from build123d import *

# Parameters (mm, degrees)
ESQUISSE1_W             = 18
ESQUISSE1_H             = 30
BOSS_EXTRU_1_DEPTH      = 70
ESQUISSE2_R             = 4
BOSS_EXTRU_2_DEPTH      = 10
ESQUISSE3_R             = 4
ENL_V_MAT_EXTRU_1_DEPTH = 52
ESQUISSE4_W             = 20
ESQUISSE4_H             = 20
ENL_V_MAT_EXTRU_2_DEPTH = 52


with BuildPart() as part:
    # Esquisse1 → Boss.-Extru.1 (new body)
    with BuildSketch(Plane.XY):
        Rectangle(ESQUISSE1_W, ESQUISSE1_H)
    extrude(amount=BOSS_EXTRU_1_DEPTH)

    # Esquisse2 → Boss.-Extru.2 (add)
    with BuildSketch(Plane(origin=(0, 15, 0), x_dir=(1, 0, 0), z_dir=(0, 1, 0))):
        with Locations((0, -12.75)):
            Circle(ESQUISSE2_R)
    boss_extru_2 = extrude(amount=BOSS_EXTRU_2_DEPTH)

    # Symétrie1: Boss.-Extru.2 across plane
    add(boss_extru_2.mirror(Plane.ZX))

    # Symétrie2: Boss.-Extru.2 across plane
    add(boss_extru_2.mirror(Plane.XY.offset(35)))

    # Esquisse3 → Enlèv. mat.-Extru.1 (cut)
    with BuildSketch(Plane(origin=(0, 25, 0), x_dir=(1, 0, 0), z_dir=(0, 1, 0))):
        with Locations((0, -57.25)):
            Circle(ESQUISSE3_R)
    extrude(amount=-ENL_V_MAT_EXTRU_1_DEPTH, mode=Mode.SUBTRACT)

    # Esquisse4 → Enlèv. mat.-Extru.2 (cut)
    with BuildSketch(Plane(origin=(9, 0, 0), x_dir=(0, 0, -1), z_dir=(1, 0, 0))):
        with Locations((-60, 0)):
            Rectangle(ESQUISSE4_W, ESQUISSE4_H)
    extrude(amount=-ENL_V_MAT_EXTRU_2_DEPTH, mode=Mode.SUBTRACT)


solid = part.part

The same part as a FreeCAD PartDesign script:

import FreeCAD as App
import Part
import Sketcher
from FreeCAD import Vector

doc = App.newDocument("Part")
params = doc.addObject("Spreadsheet::Sheet", "Params")
for row, (alias, value) in enumerate([
    ("sketch1_width", "18 mm"),
    ("sketch1_height", "30 mm"),
    ("pad1_length", "70 mm"),
    ("sketch2_diameter", "8 mm"),
    ("pad2_length", "10 mm"),
    ("sketch3_diameter", "8 mm"),
    ("pocket1_length", "52 mm"),
    ("sketch4_width", "20 mm"),
    ("pocket2_length", "52 mm"),
], start=1):
    params.set(f"A{row}", alias)
    params.set(f"B{row}", "=" + value)
    params.setAlias(f"B{row}", alias)

body = doc.addObject("PartDesign::Body", "Body")

# Sketch on XY plane
sketch1 = body.newObject("Sketcher::SketchObject", "Sketch")
sketch1.AttachmentSupport = (doc.getObject("XY_Plane"), [""])
sketch1.MapMode = "FlatFace"
sketch1.addGeometry([
    Part.LineSegment(Vector(-9, 15, 0), Vector(-9, -15, 0)),
    Part.LineSegment(Vector(-9, -15, 0), Vector(9, -15, 0)),
    Part.LineSegment(Vector(9, -15, 0), Vector(9, 15, 0)),
    Part.LineSegment(Vector(9, 15, 0), Vector(-9, 15, 0)),
], False)
sketch1.addConstraint([
    Sketcher.Constraint("Coincident", 0, 2, 1, 1),
    Sketcher.Constraint("Coincident", 1, 2, 2, 1),
    Sketcher.Constraint("Coincident", 2, 2, 3, 1),
    Sketcher.Constraint("Coincident", 3, 2, 0, 1),
    Sketcher.Constraint("Vertical", 0),
    Sketcher.Constraint("Horizontal", 1),
    Sketcher.Constraint("Vertical", 2),
    Sketcher.Constraint("Horizontal", 3),
    Sketcher.Constraint("Symmetric", 0, 2, 2, 2, -1, 1),
    Sketcher.Constraint("DistanceX", 1, 1, 1, 2, 18.0),
    Sketcher.Constraint("DistanceY", 0, 2, 0, 1, 30.0),
])
sketch1.setExpression("Constraints[9]", "Params.sketch1_width")
sketch1.setExpression("Constraints[10]", "Params.sketch1_height")
pad1 = body.newObject("PartDesign::Pad", "Pad")
pad1.Profile = sketch1
pad1.setExpression("Length", "Params.pad1_length")

# Sketch on XZ plane
sketch2 = body.newObject("Sketcher::SketchObject", "Sketch001")
sketch2.AttachmentSupport = (doc.getObject("XZ_Plane"), [""])
sketch2.MapMode = "FlatFace"
sketch2.AttachmentOffset = App.Placement(Vector(0, 0, -15), App.Rotation())
sketch2.addGeometry(Part.Circle(Vector(0, 12.75, 0), Vector(0, 0, 1), 4), False)
sketch2.addConstraint([
    Sketcher.Constraint("PointOnObject", 0, 3, -2),
    Sketcher.Constraint("Diameter", 0, 8.0),
    Sketcher.Constraint("DistanceY", -1, 1, 0, 3, 12.75),
])
sketch2.setExpression("Constraints[1]", "Params.sketch2_diameter")
pad2 = body.newObject("PartDesign::Pad", "Pad001")
pad2.Profile = sketch2
pad2.setExpression("Length", "Params.pad2_length")
pad2.Reversed = True
doc.recompute()

mirrored = body.newObject("PartDesign::Mirrored", "Mirrored")
mirrored.Originals = [pad2]
mirrored.MirrorPlane = (doc.getObject("XZ_Plane"), [""])
body.Tip = mirrored
doc.recompute()

datumplane = body.newObject("PartDesign::Plane", "DatumPlane")
datumplane.AttachmentSupport = (doc.getObject("XY_Plane"), [""])
datumplane.MapMode = "FlatFace"
datumplane.AttachmentOffset = App.Placement(Vector(0, 0, 35), App.Rotation())
mirrored2 = body.newObject("PartDesign::Mirrored", "Mirrored001")
mirrored2.Originals = [pad2]
mirrored2.MirrorPlane = (datumplane, [""])
body.Tip = mirrored2

# Sketch on XZ plane
sketch3 = body.newObject("Sketcher::SketchObject", "Sketch002")
sketch3.AttachmentSupport = (doc.getObject("XZ_Plane"), [""])
sketch3.MapMode = "FlatFace"
sketch3.AttachmentOffset = App.Placement(Vector(0, 0, -25), App.Rotation())
sketch3.addGeometry(Part.Circle(Vector(0, 57.25, 0), Vector(0, 0, 1), 4), False)
sketch3.addConstraint([
    Sketcher.Constraint("PointOnObject", 0, 3, -2),
    Sketcher.Constraint("Diameter", 0, 8.0),
    Sketcher.Constraint("DistanceY", -1, 1, 0, 3, 57.25),
])
sketch3.setExpression("Constraints[1]", "Params.sketch3_diameter")
pocket1 = body.newObject("PartDesign::Pocket", "Pocket")
pocket1.Profile = sketch3
pocket1.setExpression("Length", "Params.pocket1_length")
pocket1.Reversed = True

# Sketch on YZ plane
sketch4 = body.newObject("Sketcher::SketchObject", "Sketch003")
sketch4.AttachmentSupport = (doc.getObject("YZ_Plane"), [""])
sketch4.MapMode = "FlatFace"
sketch4.AttachmentOffset = App.Placement(Vector(0, 0, 9), App.Rotation())
sketch4.addGeometry([
    Part.LineSegment(Vector(10, 70, 0), Vector(-10, 70, 0)),
    Part.LineSegment(Vector(-10, 70, 0), Vector(-10, 50, 0)),
    Part.LineSegment(Vector(-10, 50, 0), Vector(10, 50, 0)),
    Part.LineSegment(Vector(10, 50, 0), Vector(10, 70, 0)),
], False)
sketch4.addConstraint([
    Sketcher.Constraint("Coincident", 0, 2, 1, 1),
    Sketcher.Constraint("Coincident", 1, 2, 2, 1),
    Sketcher.Constraint("Coincident", 2, 2, 3, 1),
    Sketcher.Constraint("Coincident", 3, 2, 0, 1),
    Sketcher.Constraint("Horizontal", 0),
    Sketcher.Constraint("Vertical", 1),
    Sketcher.Constraint("Horizontal", 2),
    Sketcher.Constraint("Vertical", 3),
    Sketcher.Constraint("Equal", 2, 1),
    Sketcher.Constraint("DistanceX", 0, 2, 0, 1, 20.0),
    Sketcher.Constraint("DistanceX", 0, 2, -1, 1, 10.0),
    Sketcher.Constraint("DistanceY", -1, 1, 0, 2, 70.0),
])
sketch4.setExpression("Constraints[9]", "Params.sketch4_width")
pocket2 = body.newObject("PartDesign::Pocket", "Pocket001")
pocket2.Profile = sketch4
pocket2.setExpression("Length", "Params.pocket2_length")

doc.recompute()
